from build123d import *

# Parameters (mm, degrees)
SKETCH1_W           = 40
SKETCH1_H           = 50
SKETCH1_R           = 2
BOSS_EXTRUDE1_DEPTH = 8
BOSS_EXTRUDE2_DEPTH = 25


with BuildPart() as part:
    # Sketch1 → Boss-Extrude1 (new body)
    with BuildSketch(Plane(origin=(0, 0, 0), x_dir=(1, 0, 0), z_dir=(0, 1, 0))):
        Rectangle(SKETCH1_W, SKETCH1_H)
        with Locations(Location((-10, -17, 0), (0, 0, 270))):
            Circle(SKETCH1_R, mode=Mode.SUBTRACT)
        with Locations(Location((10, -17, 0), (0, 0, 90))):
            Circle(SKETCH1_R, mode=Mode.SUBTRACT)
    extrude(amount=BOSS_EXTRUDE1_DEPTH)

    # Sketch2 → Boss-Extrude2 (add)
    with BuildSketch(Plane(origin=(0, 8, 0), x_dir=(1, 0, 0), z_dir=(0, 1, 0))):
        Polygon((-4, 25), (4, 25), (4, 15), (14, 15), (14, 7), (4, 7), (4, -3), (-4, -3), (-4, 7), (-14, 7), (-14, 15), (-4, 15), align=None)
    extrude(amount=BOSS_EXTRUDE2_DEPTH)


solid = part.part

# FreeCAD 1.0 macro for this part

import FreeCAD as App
import Part
import Sketcher

V = App.Vector
Q = App.Units.Quantity


def add_polygon(sketch, points):
    """Adds a closed chain of lines whose ends are joined by coincident constraints."""
    first, n = sketch.GeometryCount, len(points)
    for a, b in zip(points, points[1:] + points[:1]):
        sketch.addGeometry(Part.LineSegment(App.Vector(*a, 0), App.Vector(*b, 0)), False)
    for i in range(n):
        sketch.addConstraint(Sketcher.Constraint("Coincident", first + i, 2, first + (i + 1) % n, 1))

doc = App.newDocument("Part")
body = doc.addObject("PartDesign::Body", "Body")

sketch1 = doc.addObject("Sketcher::SketchObject", "Sketch")
body.addObject(sketch1)
sketch1.AttachmentSupport = (doc.XZ_Plane, [""])
sketch1.MapMode = "FlatFace"
add_polygon(sketch1, [(-20, -25), (-20, 25), (20, 25), (20, -25)])
sketch1.addGeometry(Part.Circle(V(-10, 17, 0), V(0, 0, 1), 2), False)
sketch1.addGeometry(Part.Circle(V(10, 17, 0), V(0, 0, 1), 2), False)
sketch1.addConstraint([
    Sketcher.Constraint("Vertical", 0),
    Sketcher.Constraint("Horizontal", 1),
    Sketcher.Constraint("Vertical", 2),
    Sketcher.Constraint("Horizontal", 3),
    Sketcher.Constraint("Equal", 4, 5),
    Sketcher.Constraint("Symmetric", 0, 2, 2, 2, -1, 1),
    Sketcher.Constraint("Symmetric", 4, 3, 5, 3, -2),
    Sketcher.Constraint("Diameter", 4, Q("4 mm")),
    Sketcher.Constraint("DistanceX", 1, 1, 1, 2, Q("40 mm")),
    Sketcher.Constraint("DistanceY", 0, 1, 0, 2, Q("50 mm")),
    Sketcher.Constraint("DistanceX", 4, 3, -1, 1, Q("10 mm")),
    Sketcher.Constraint("DistanceY", -1, 1, 4, 3, Q("17 mm")),
])
pad1 = doc.addObject("PartDesign::Pad", "Pad")
body.addObject(pad1)
pad1.Profile = sketch1
pad1.Length = 8
pad1.Reversed = True

sketch2 = doc.addObject("Sketcher::SketchObject", "Sketch001")
body.addObject(sketch2)
sketch2.AttachmentSupport = (doc.XZ_Plane, [""])
sketch2.MapMode = "FlatFace"
sketch2.AttachmentOffset = App.Placement(V(0, 0, -8), App.Rotation())
add_polygon(sketch2, [(4, -25), (-4, -25), (-4, -15), (-14, -15), (-14, -7), (-4, -7), (-4, 3), (4, 3), (4, -7), (14, -7), (14, -15), (4, -15)])
sketch2.addConstraint([
    Sketcher.Constraint("Horizontal", 0),
    Sketcher.Constraint("Vertical", 1),
    Sketcher.Constraint("Horizontal", 2),
    Sketcher.Constraint("Vertical", 3),
    Sketcher.Constraint("Horizontal", 4),
    Sketcher.Constraint("Vertical", 5),
    Sketcher.Constraint("Horizontal", 6),
    Sketcher.Constraint("Vertical", 7),
    Sketcher.Constraint("Horizontal", 8),
    Sketcher.Constraint("Vertical", 9),
    Sketcher.Constraint("Horizontal", 10),
    Sketcher.Constraint("Vertical", 11),
    Sketcher.Constraint("Symmetric", 4, 2, 7, 2, -2),
    Sketcher.Constraint("Symmetric", 2, 2, 9, 2, -2),
    Sketcher.Constraint("Vertical", 1, 2, 4, 2),
    Sketcher.Constraint("Vertical", 7, 2, 10, 2),
    Sketcher.Constraint("Equal", 10, 1),
    Sketcher.Constraint("Equal", 6, 3),
    Sketcher.Constraint("Equal", 1, 5),
    Sketcher.Constraint("DistanceX", 0, 2, 0, 1, Q("8 mm")),
    Sketcher.Constraint("DistanceX", 2, 2, 2, 1, Q("10 mm")),
    Sketcher.Constraint("DistanceY", 0, 2, -1, 1, Q("25 mm")),
])
pad2 = doc.addObject("PartDesign::Pad", "Pad001")
body.addObject(pad2)
pad2.Profile = sketch2
pad2.Length = 25
pad2.Reversed = True

doc.recompute()
